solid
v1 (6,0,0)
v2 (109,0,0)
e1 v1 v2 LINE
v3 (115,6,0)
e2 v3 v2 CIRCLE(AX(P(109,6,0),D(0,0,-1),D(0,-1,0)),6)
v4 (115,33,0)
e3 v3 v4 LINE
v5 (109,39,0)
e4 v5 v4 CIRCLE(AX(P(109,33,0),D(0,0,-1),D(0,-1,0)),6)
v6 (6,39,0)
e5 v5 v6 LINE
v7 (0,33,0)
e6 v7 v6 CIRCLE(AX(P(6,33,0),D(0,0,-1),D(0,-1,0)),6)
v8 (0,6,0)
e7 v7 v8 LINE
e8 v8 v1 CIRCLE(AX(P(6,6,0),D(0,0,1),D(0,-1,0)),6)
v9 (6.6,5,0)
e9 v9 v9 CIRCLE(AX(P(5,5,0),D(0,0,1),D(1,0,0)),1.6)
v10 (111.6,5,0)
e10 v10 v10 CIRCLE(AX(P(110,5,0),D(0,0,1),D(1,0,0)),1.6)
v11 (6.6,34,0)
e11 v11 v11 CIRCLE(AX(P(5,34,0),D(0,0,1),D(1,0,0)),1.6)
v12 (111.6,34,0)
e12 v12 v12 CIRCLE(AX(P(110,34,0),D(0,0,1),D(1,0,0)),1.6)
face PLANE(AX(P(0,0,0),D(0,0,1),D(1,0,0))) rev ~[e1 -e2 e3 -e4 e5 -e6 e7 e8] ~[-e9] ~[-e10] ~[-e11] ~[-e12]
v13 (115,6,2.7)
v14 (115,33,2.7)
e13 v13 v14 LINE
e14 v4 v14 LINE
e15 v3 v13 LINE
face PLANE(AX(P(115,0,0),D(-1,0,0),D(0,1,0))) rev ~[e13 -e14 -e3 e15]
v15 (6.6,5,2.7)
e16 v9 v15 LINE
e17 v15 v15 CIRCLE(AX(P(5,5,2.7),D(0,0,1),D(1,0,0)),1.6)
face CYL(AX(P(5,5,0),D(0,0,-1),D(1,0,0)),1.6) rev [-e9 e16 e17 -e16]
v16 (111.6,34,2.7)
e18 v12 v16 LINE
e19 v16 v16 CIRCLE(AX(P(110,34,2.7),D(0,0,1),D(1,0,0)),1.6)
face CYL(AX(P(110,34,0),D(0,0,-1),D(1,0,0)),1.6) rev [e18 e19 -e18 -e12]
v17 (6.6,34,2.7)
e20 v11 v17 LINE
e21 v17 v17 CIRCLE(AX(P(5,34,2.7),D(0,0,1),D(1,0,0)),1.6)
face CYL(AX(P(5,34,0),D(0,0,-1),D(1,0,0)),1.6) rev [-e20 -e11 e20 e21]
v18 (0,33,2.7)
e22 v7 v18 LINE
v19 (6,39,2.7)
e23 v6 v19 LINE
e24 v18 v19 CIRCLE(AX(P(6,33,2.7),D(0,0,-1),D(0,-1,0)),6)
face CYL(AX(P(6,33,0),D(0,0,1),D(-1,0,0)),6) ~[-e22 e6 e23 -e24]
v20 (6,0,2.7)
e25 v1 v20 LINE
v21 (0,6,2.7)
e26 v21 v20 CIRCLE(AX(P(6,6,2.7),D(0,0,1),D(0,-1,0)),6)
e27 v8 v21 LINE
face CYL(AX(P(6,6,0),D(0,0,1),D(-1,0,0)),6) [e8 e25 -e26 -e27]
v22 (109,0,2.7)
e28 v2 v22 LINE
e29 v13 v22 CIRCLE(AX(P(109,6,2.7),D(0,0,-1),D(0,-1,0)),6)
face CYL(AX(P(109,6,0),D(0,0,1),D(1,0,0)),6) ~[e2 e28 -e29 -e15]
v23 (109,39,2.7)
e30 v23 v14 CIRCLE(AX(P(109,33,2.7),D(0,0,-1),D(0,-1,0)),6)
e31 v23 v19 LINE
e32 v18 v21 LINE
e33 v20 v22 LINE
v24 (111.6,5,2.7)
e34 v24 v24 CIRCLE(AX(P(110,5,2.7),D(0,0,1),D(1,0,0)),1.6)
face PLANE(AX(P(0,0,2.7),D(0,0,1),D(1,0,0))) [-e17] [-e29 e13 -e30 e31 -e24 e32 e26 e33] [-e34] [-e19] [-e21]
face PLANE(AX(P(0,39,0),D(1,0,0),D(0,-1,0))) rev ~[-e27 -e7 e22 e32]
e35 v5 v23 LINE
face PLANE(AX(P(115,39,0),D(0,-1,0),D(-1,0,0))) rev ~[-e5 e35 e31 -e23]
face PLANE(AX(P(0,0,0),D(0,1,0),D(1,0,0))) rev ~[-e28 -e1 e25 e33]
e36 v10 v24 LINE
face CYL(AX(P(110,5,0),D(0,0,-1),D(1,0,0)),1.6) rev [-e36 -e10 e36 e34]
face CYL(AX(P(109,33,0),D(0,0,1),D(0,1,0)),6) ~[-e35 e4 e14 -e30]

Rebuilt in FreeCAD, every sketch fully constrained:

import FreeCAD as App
import Part
import Sketcher
from FreeCAD import Vector


def edges_at(feature, points):
    """Names of the edges that pass closest to the given points."""
    edges = feature.Shape.Edges
    near = lambda p: min(range(len(edges)), key=lambda i: edges[i].distToShape(Part.Vertex(*p))[0])
    return sorted({f"Edge{near(p) + 1}" for p in points})


def add_polygon(sketch, points):
    """Adds a closed chain of lines whose ends are joined by coincident constraints."""
    first, n = sketch.GeometryCount, len(points)
    for a, b in zip(points, points[1:] + points[:1]):
        sketch.addGeometry(Part.LineSegment(App.Vector(*a, 0), App.Vector(*b, 0)), False)
    for i in range(n):
        sketch.addConstraint(Sketcher.Constraint("Coincident", first + i, 2, first + (i + 1) % n, 1))

doc = App.newDocument("Part")
params = doc.addObject("Spreadsheet::Sheet", "Params")
for row, (alias, value) in enumerate([
    ("sketch1_diameter", "3.2 mm"),
    ("sketch1_width", "115 mm"),
    ("sketch1_height", "39 mm"),
    ("pad1_length", "2.7 mm"),
    ("fillet_radius", "6 mm"),
], start=1):
    params.set(f"A{row}", alias)
    params.set(f"B{row}", "=" + value)
    params.setAlias(f"B{row}", alias)

body = doc.addObject("PartDesign::Body", "Body")

# Sketch on XY plane
sketch1 = body.newObject("Sketcher::SketchObject", "Sketch")
sketch1.AttachmentSupport = (doc.getObject("XY_Plane"), [""])
sketch1.MapMode = "FlatFace"
add_polygon(sketch1, [(0, 39), (0, 0), (115, 0), (115, 39)])  # lines 0-3
sketch1.addGeometry(Part.Circle(Vector(5, 5, 0), Vector(0, 0, 1), 1.6), False)  # 4
sketch1.addGeometry(Part.Circle(Vector(110, 5, 0), Vector(0, 0, 1), 1.6), False)  # 5
sketch1.addGeometry(Part.Circle(Vector(5, 34, 0), Vector(0, 0, 1), 1.6), False)  # 6
sketch1.addGeometry(Part.Circle(Vector(110, 34, 0), Vector(0, 0, 1), 1.6), False)  # 7
sketch1.addConstraint([
    Sketcher.Constraint("Vertical", 0),
    Sketcher.Constraint("Horizontal", 1),
    Sketcher.Constraint("Vertical", 2),
    Sketcher.Constraint("Horizontal", 3),
    Sketcher.Constraint("Coincident", 0, 2, -1, 1),
    Sketcher.Constraint("Equal", 4, 5),
    Sketcher.Constraint("Equal", 5, 6),
    Sketcher.Constraint("Equal", 6, 7),
    Sketcher.Constraint("Horizontal", 4, 3, 5, 3),
    Sketcher.Constraint("Horizontal", 6, 3, 7, 3),
    Sketcher.Constraint("Vertical", 4, 3, 6, 3),
    Sketcher.Constraint("Vertical", 5, 3, 7, 3),
    Sketcher.Constraint("Diameter", 4, 3.2),
    Sketcher.Constraint("DistanceX", 1, 1, 1, 2, 115.0),
    Sketcher.Constraint("DistanceY", 0, 2, 0, 1, 39.0),
    Sketcher.Constraint("DistanceX", -1, 1, 4, 3, 5.0),
    Sketcher.Constraint("DistanceY", -1, 1, 4, 3, 5.0),
    Sketcher.Constraint("DistanceX", 5, 3, 1, 2, 5.0),
    Sketcher.Constraint("DistanceY", 7, 3, 2, 2, 5.0),
])
sketch1.setExpression("Constraints[16]", "Params.sketch1_diameter")
sketch1.setExpression("Constraints[17]", "Params.sketch1_width")
sketch1.setExpression("Constraints[18]", "Params.sketch1_height")
pad1 = body.newObject("PartDesign::Pad", "Pad")
pad1.Profile = sketch1
pad1.setExpression("Length", "Params.pad1_length")
doc.recompute()

fillet = body.newObject("PartDesign::Fillet", "Fillet")
fillet.Base = (pad1, edges_at(pad1, [
    (115, 39, 1.35),
    (115, 0, 1.35),
    (0, 39, 1.35),
    (0, 0, 1.35),
]))
fillet.setExpression("Radius", "Params.fillet_radius")

doc.recompute()
